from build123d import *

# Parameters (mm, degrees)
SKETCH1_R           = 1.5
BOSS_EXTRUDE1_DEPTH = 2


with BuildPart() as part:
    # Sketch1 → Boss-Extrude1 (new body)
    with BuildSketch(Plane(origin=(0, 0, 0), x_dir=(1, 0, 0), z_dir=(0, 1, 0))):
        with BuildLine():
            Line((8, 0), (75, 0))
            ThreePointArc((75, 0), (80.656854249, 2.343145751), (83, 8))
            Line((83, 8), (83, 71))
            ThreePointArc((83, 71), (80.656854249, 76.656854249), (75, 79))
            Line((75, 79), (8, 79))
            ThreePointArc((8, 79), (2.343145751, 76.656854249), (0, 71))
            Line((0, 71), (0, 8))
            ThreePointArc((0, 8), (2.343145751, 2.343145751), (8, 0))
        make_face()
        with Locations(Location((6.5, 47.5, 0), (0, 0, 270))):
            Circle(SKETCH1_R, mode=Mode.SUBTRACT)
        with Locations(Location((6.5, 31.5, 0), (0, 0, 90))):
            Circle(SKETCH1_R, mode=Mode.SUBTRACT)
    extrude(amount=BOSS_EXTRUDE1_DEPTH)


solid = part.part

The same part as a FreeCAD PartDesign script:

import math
import FreeCAD as App
import Part
import Sketcher

V = App.Vector
Q = App.Units.Quantity

doc = App.newDocument("Part")
body = doc.addObject("PartDesign::Body", "Body")

# Sketch on XZ plane
sketch1 = doc.addObject("Sketcher::SketchObject", "Sketch")
body.addObject(sketch1)
sketch1.AttachmentSupport = (doc.XZ_Plane, [""])
sketch1.MapMode = "FlatFace"
sketch1.addGeometry([
    Part.LineSegment(V(8, 0, 0), V(75, 0, 0)),  # 0
    Part.ArcOfCircle(Part.Circle(V(75, -8, 0), V(0, 0, 1), 8), math.radians(0), math.radians(90)),  # 1
    Part.LineSegment(V(83, -8, 0), V(83, -71, 0)),  # 2
    Part.ArcOfCircle(Part.Circle(V(75, -71, 0), V(0, 0, 1), 8), math.radians(-90), math.radians(0)),  # 3
    Part.LineSegment(V(75, -79, 0), V(8, -79, 0)),  # 4
    Part.ArcOfCircle(Part.Circle(V(8, -71, 0), V(0, 0, 1), 8), math.radians(-180), math.radians(-90)),  # 5
    Part.LineSegment(V(0, -71, 0), V(0, -8, 0)),  # 6
    Part.ArcOfCircle(Part.Circle(V(8, -8, 0), V(0, 0, 1), 8), math.radians(90), math.radians(180)),  # 7
    Part.Circle(V(6.5, -31.5, 0), V(0, 0, 1), 1.5),  # 8
    Part.Circle(V(6.5, -47.5, 0), V(0, 0, 1), 1.5),  # 9
], False)
sketch1.addConstraint([
    Sketcher.Constraint("Tangent", 0, 2, 1, 2),
    Sketcher.Constraint("Tangent", 1, 1, 2, 1),
    Sketcher.Constraint("Tangent", 2, 2, 3, 2),
    Sketcher.Constraint("Tangent", 3, 1, 4, 1),
    Sketcher.Constraint("Tangent", 4, 2, 5, 2),
    Sketcher.Constraint("Tangent", 5, 1, 6, 1),
    Sketcher.Constraint("Tangent", 6, 2, 7, 2),
    Sketcher.Constraint("Tangent", 7, 1, 0, 1),
    Sketcher.Constraint("Horizontal", 0),
    Sketcher.Constraint("Vertical", 2),
    Sketcher.Constraint("Horizontal", 4),
    Sketcher.Constraint("Vertical", 6),
    Sketcher.Constraint("Equal", 1, 3),
    Sketcher.Constraint("Equal", 3, 5),
    Sketcher.Constraint("Equal", 5, 7),
    Sketcher.Constraint("Equal", 8, 9),
    Sketcher.Constraint("PointOnObject", 0, 2, -1),
    Sketcher.Constraint("PointOnObject", 5, 1, -2),
    Sketcher.Constraint("Vertical", 8, 3, 9, 3),
    Sketcher.Constraint("Diameter", 8, Q("3 mm")),
    Sketcher.Constraint("Radius", 1, Q("8 mm")),
    Sketcher.Constraint("DistanceX", 0, 1, 0, 2, Q("67 mm")),
    Sketcher.Constraint("DistanceY", 2, 2, 2, 1, Q("63 mm")),
    Sketcher.Constraint("DistanceY", 9, 3, 8, 3, Q("16 mm")),
    Sketcher.Constraint("DistanceX", -1, 1, 8, 3, Q("6.5 mm")),
    Sketcher.Constraint("DistanceY", 8, 3, -1, 1, Q("31.5 mm")),
])
pad1 = doc.addObject("PartDesign::Pad", "Pad")
body.addObject(pad1)
pad1.Profile = sketch1
pad1.Length = 2
pad1.Reversed = True

doc.recompute()
